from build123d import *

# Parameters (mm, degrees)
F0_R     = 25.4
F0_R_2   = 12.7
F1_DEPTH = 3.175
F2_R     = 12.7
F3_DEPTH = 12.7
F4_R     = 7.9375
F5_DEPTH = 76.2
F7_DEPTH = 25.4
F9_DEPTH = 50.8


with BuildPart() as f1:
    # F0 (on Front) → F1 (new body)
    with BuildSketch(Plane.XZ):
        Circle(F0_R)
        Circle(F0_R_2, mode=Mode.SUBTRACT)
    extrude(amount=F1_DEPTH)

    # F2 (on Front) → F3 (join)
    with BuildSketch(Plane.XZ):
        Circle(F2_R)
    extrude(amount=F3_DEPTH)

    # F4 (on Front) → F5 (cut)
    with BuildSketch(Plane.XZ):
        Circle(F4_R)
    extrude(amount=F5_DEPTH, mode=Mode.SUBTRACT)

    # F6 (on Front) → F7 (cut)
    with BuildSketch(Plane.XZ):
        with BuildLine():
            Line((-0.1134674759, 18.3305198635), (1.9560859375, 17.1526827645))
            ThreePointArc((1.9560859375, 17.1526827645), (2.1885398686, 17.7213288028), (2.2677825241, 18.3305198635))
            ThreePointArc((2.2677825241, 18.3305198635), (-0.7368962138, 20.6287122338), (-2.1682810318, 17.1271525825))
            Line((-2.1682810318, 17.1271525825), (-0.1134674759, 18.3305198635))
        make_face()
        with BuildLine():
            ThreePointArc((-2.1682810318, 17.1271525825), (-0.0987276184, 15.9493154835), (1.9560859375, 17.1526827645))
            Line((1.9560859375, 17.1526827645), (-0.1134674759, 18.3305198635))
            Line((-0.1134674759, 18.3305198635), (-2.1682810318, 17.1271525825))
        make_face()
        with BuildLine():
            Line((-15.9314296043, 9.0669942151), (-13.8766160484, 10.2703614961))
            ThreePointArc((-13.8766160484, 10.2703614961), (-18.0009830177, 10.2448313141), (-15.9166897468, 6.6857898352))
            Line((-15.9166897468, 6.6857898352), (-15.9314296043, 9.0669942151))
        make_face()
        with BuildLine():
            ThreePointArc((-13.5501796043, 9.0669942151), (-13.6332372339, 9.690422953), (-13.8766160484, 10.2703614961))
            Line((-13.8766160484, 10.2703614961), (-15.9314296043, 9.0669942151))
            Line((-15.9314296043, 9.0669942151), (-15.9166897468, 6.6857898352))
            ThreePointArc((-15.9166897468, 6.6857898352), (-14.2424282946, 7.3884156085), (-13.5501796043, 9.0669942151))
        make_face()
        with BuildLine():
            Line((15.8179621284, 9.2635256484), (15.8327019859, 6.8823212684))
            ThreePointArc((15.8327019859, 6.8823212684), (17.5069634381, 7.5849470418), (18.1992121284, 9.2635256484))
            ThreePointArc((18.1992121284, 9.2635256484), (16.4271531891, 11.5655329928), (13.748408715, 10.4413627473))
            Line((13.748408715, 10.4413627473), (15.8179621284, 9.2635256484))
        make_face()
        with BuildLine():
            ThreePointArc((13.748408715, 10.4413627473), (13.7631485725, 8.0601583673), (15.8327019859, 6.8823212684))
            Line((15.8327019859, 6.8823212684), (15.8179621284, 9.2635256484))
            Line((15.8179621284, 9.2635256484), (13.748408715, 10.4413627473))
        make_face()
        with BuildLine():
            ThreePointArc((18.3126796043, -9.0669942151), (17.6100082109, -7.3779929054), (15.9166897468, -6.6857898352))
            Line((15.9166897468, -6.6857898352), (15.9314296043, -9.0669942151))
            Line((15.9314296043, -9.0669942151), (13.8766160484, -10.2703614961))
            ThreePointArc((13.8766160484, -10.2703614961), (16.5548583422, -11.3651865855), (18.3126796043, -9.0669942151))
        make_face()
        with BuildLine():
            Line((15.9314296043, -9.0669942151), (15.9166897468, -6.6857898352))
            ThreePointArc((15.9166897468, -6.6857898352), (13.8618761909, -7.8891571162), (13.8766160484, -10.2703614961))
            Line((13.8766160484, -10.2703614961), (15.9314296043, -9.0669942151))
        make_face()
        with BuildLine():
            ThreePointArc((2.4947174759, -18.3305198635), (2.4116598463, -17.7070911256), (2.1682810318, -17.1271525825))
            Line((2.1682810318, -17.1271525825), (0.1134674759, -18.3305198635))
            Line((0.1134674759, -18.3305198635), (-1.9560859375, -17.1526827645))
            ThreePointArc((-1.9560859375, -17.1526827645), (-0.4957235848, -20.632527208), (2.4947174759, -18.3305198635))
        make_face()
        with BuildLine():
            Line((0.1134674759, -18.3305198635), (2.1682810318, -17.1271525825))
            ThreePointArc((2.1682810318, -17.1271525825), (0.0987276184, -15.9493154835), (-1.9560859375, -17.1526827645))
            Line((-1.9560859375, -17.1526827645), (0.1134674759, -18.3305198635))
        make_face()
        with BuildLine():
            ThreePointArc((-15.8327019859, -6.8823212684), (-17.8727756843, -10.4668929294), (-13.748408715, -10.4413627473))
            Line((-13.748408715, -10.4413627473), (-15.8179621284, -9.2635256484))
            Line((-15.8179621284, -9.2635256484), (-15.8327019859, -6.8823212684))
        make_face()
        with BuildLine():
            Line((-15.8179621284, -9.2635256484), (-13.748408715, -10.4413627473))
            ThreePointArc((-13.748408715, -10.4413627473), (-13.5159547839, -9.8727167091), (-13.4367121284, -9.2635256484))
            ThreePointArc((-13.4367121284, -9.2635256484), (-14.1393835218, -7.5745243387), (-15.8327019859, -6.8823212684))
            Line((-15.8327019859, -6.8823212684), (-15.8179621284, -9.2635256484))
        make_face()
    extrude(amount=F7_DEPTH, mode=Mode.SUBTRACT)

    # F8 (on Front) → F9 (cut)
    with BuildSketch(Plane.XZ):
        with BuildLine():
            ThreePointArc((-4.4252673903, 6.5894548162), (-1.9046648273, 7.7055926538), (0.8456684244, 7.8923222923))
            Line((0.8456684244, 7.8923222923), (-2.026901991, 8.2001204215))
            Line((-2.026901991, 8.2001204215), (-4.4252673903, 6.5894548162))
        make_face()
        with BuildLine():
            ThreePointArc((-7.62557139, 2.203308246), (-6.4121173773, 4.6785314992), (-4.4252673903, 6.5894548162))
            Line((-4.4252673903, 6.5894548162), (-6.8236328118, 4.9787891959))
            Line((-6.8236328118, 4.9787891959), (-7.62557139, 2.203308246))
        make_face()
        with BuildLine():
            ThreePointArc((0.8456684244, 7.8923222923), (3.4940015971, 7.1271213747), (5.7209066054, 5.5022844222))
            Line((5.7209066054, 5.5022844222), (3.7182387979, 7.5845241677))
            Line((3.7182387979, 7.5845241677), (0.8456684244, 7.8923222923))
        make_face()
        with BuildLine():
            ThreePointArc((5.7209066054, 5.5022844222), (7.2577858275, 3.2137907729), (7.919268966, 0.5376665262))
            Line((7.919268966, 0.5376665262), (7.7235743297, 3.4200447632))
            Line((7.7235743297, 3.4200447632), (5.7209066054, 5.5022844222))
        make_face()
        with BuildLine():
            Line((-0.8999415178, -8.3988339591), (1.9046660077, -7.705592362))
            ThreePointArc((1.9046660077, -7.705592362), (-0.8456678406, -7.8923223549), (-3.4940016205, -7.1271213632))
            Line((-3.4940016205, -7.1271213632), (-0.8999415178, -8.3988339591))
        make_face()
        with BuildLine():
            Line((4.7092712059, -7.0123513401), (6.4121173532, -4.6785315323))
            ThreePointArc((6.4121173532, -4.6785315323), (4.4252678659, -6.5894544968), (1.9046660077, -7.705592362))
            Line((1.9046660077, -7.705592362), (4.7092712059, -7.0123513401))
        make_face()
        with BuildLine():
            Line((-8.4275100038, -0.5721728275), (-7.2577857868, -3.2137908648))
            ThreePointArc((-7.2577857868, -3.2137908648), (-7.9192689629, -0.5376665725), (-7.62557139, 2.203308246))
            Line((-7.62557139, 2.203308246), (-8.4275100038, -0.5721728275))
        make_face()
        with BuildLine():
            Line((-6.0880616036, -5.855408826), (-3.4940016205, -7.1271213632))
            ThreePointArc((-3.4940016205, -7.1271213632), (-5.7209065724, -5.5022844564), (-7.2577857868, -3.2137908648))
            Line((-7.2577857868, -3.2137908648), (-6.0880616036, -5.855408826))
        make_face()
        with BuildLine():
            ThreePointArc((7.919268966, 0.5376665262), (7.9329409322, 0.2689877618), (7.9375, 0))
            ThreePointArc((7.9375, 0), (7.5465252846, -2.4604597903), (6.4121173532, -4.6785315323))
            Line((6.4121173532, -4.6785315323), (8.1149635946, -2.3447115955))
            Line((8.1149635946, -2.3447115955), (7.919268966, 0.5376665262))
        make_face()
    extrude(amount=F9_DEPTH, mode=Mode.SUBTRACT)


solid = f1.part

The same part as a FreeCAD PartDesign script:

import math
import FreeCAD as App
import Part
import Sketcher
from FreeCAD import Vector
Q = App.Units.Quantity

doc = App.newDocument("Part")
params = doc.addObject("Spreadsheet::Sheet", "Params")
for row, (alias, value) in enumerate([
    ("sketch1_diameter", "2 in"),
    ("sketch1_diameter2", "1 in"),
    ("pad1_length", "0.125 in"),
    ("sketch2_diameter", "1 in"),
    ("pad2_length", "0.5 in"),
    ("sketch3_diameter", "0.625 in"),
    ("pocket1_length", "3 in"),
    ("sketch4_radius", "0.09375 in"),
    ("pocket2_length", "1 in"),
    ("sketch5_radius", "0.3125 in"),
    ("pocket3_length", "2 in"),
], start=1):
    params.set(f"A{row}", alias)
    params.set(f"B{row}", "=" + value)
    params.setAlias(f"B{row}", alias)

body = doc.addObject("PartDesign::Body", "Body")

# Sketch on XZ plane
sketch1 = doc.addObject("Sketcher::SketchObject", "Sketch")
body.addObject(sketch1)
sketch1.AttachmentSupport = (doc.XZ_Plane, [""])
sketch1.MapMode = "FlatFace"
sketch1.addGeometry([
    Part.Circle(Vector(0, 0, 0), Vector(0, 0, 1), 25.4),
    Part.Circle(Vector(0, 0, 0), Vector(0, 0, 1), 12.7),
], False)
sketch1.addConstraint([
    Sketcher.Constraint("Coincident", 0, 3, -1, 1),
    Sketcher.Constraint("Coincident", 1, 3, -1, 1),
    Sketcher.Constraint("Diameter", 0, Q("2 in")),
    Sketcher.Constraint("Diameter", 1, Q("1 in")),
])
sketch1.setExpression("Constraints[2]", "Params.sketch1_diameter")
sketch1.setExpression("Constraints[3]", "Params.sketch1_diameter2")
pad1 = doc.addObject("PartDesign::Pad", "Pad")
body.addObject(pad1)
pad1.Profile = sketch1
pad1.setExpression("Length", "Params.pad1_length")

# Sketch on XZ plane
sketch2 = doc.addObject("Sketcher::SketchObject", "Sketch001")
body.addObject(sketch2)
sketch2.AttachmentSupport = (doc.XZ_Plane, [""])
sketch2.MapMode = "FlatFace"
sketch2.addGeometry(Part.Circle(Vector(0, 0, 0), Vector(0, 0, 1), 12.7), False)
sketch2.addConstraint([
    Sketcher.Constraint("Coincident", 0, 3, -1, 1),
    Sketcher.Constraint("Diameter", 0, Q("1 in")),
])
sketch2.setExpression("Constraints[1]", "Params.sketch2_diameter")
pad2 = doc.addObject("PartDesign::Pad", "Pad001")
body.addObject(pad2)
pad2.Profile = sketch2
pad2.setExpression("Length", "Params.pad2_length")

# Sketch on XZ plane
sketch3 = doc.addObject("Sketcher::SketchObject", "Sketch002")
body.addObject(sketch3)
sketch3.AttachmentSupport = (doc.XZ_Plane, [""])
sketch3.MapMode = "FlatFace"
sketch3.addGeometry(Part.Circle(Vector(0, 0, 0), Vector(0, 0, 1), 7.9375), False)
sketch3.addConstraint([
    Sketcher.Constraint("Coincident", 0, 3, -1, 1),
    Sketcher.Constraint("Diameter", 0, Q("0.625 in")),
])
sketch3.setExpression("Constraints[1]", "Params.sketch3_diameter")
pocket1 = doc.addObject("PartDesign::Pocket", "Pocket")
body.addObject(pocket1)
pocket1.Profile = sketch3
pocket1.setExpression("Length", "Params.pocket1_length")
pocket1.Reversed = True

# Sketch on XZ plane
sketch4 = doc.addObject("Sketcher::SketchObject", "Sketch003")
body.addObject(sketch4)
sketch4.AttachmentSupport = (doc.XZ_Plane, [""])
sketch4.MapMode = "FlatFace"
sketch4.addGeometry([
    Part.ArcOfCircle(Part.Circle(Vector(-0.113467, 18.33052, 0), Vector(0, 0, 1), 2.38125), math.radians(-29.645339), math.radians(0)),  # 0
    Part.ArcOfCircle(Part.Circle(Vector(-0.113467, 18.33052, 0), Vector(0, 0, 1), 2.38125), math.radians(0), math.radians(210.354661)),  # 1
    Part.ArcOfCircle(Part.Circle(Vector(-0.113467, 18.33052, 0), Vector(0, 0, 1), 2.38125), math.radians(-149.645339), math.radians(-29.645339)),  # 2
    Part.ArcOfCircle(Part.Circle(Vector(-15.93143, 9.066994, 0), Vector(0, 0, 1), 2.38125), math.radians(30.354661), math.radians(270.354661)),  # 3
    Part.ArcOfCircle(Part.Circle(Vector(-15.93143, 9.066994, 0), Vector(0, 0, 1), 2.38125), math.radians(-89.645339), math.radians(0)),  # 4
    Part.ArcOfCircle(Part.Circle(Vector(-15.93143, 9.066994, 0), Vector(0, 0, 1), 2.38125), math.radians(0), math.radians(30.354661)),  # 5
    Part.ArcOfCircle(Part.Circle(Vector(15.817962, 9.263526, 0), Vector(0, 0, 1), 2.38125), math.radians(-89.645339), math.radians(0)),  # 6
    Part.ArcOfCircle(Part.Circle(Vector(15.817962, 9.263526, 0), Vector(0, 0, 1), 2.38125), math.radians(0), math.radians(150.354661)),  # 7
    Part.ArcOfCircle(Part.Circle(Vector(15.817962, 9.263526, 0), Vector(0, 0, 1), 2.38125), math.radians(150.354661), math.radians(270.354661)),  # 8
    Part.ArcOfCircle(Part.Circle(Vector(15.93143, -9.066994, 0), Vector(0, 0, 1), 2.38125), math.radians(0), math.radians(90.354661)),  # 9
    Part.ArcOfCircle(Part.Circle(Vector(15.93143, -9.066994, 0), Vector(0, 0, 1), 2.38125), math.radians(90.354661), math.radians(210.354661)),  # 10
    Part.ArcOfCircle(Part.Circle(Vector(15.93143, -9.066994, 0), Vector(0, 0, 1), 2.38125), math.radians(-149.645339), math.radians(0)),  # 11
    Part.ArcOfCircle(Part.Circle(Vector(0.113467, -18.33052, 0), Vector(0, 0, 1), 2.38125), math.radians(0), math.radians(30.354661)),  # 12
    Part.ArcOfCircle(Part.Circle(Vector(0.113467, -18.33052, 0), Vector(0, 0, 1), 2.38125), math.radians(30.354661), math.radians(150.354661)),  # 13
    Part.ArcOfCircle(Part.Circle(Vector(0.113467, -18.33052, 0), Vector(0, 0, 1), 2.38125), math.radians(150.354661), math.radians(360)),  # 14
    Part.ArcOfCircle(Part.Circle(Vector(-15.817962, -9.263526, 0), Vector(0, 0, 1), 2.38125), math.radians(90.354661), math.radians(330.354661)),  # 15
    Part.ArcOfCircle(Part.Circle(Vector(-15.817962, -9.263526, 0), Vector(0, 0, 1), 2.38125), math.radians(-29.645339), math.radians(0)),  # 16
    Part.ArcOfCircle(Part.Circle(Vector(-15.817962, -9.263526, 0), Vector(0, 0, 1), 2.38125), math.radians(0), math.radians(90.354661)),  # 17
], False)
sketch4.addConstraint([
    Sketcher.Constraint("Tangent", 0, 2, 1, 1),
    Sketcher.Constraint("Tangent", 1, 2, 2, 1),
    Sketcher.Constraint("Tangent", 2, 2, 0, 1),
    Sketcher.Constraint("Tangent", 3, 2, 4, 1),
    Sketcher.Constraint("Tangent", 4, 2, 5, 1),
    Sketcher.Constraint("Tangent", 5, 2, 3, 1),
    Sketcher.Constraint("Tangent", 6, 2, 7, 1),
    Sketcher.Constraint("Tangent", 7, 2, 8, 1),
    Sketcher.Constraint("Tangent", 8, 2, 6, 1),
    Sketcher.Constraint("Tangent", 9, 2, 10, 1),
    Sketcher.Constraint("Tangent", 10, 2, 11, 1),
    Sketcher.Constraint("Tangent", 11, 2, 9, 1),
    Sketcher.Constraint("Tangent", 12, 2, 13, 1),
    Sketcher.Constraint("Tangent", 13, 2, 14, 1),
    Sketcher.Constraint("Tangent", 14, 2, 12, 1),
    Sketcher.Constraint("Tangent", 15, 2, 16, 1),
    Sketcher.Constraint("Tangent", 16, 2, 17, 1),
    Sketcher.Constraint("Tangent", 17, 2, 15, 1),
    Sketcher.Constraint("Equal", 2, 3),
    Sketcher.Constraint("Equal", 5, 6),
    Sketcher.Constraint("Equal", 8, 9),
    Sketcher.Constraint("Equal", 11, 12),
    Sketcher.Constraint("Equal", 14, 15),
    Sketcher.Constraint("Symmetric", 3, 3, 9, 3, -1, 1),
    Sketcher.Constraint("Symmetric", 0, 3, 12, 3, -1, 1),
    Sketcher.Constraint("Symmetric", 6, 3, 15, 3, -1, 1),
    Sketcher.Constraint("Horizontal", 2, 3, 0, 2),
    Sketcher.Constraint("Horizontal", 5, 3, 4, 2),
    Sketcher.Constraint("Horizontal", 8, 3, 6, 2),
    Sketcher.Constraint("Horizontal", 10, 3, 11, 2),
    Sketcher.Constraint("Horizontal", 13, 3, 14, 2),
    Sketcher.Constraint("Horizontal", 17, 3, 16, 2),
    Sketcher.Constraint("Radius", 0, Q("0.09375 in")),
    Sketcher.Constraint("DistanceX", -1, 1, 8, 2, Q("15.832702 mm")),
    Sketcher.Constraint("DistanceX", 17, 2, -1, 1, Q("15.832702 mm")),
    Sketcher.Constraint("DistanceX", 4, 2, 1, 2, Q("11.381899 mm")),
    Sketcher.Constraint("DistanceY", -1, 1, 0, 3, Q("18.33052 mm")),
    Sketcher.Constraint("DistanceX", 3, 3, -1, 1, Q("15.93143 mm")),
    Sketcher.Constraint("DistanceX", 3, 2, -1, 1, Q("15.91669 mm")),
    Sketcher.Constraint("DistanceY", -1, 1, 3, 2, Q("6.68579 mm")),
    Sketcher.Constraint("DistanceY", -1, 1, 5, 2, Q("10.270361 mm")),
    Sketcher.Constraint("DistanceX", -1, 1, 7, 2, Q("13.748409 mm")),
    Sketcher.Constraint("DistanceY", -1, 1, 8, 2, Q("6.882321 mm")),
    Sketcher.Constraint("DistanceX", -1, 1, 9, 2, Q("15.91669 mm")),
    Sketcher.Constraint("DistanceY", 10, 2, -1, 1, Q("10.270361 mm")),
    Sketcher.Constraint("DistanceX", -1, 1, 12, 2, Q("2.168281 mm")),
    Sketcher.Constraint("DistanceX", 15, 2, -1, 1, Q("13.748409 mm")),
    Sketcher.Constraint("DistanceX", 0, 3, 6, 3, Q("15.93143 mm")),
    Sketcher.Constraint("DistanceX", 3, 3, 6, 3, Q("31.749392 mm")),
    Sketcher.Constraint("DistanceY", 1, 2, 2, 2, Q("0.02553 mm")),
    Sketcher.Constraint("DistanceY", 13, 2, 12, 2, Q("0.02553 mm")),
])
sketch4.setExpression("Constraints[32]", "Params.sketch4_radius")
pocket2 = doc.addObject("PartDesign::Pocket", "Pocket001")
body.addObject(pocket2)
pocket2.Profile = sketch4
pocket2.setExpression("Length", "Params.pocket2_length")
pocket2.Reversed = True

# Sketch on XZ plane
sketch5 = doc.addObject("Sketcher::SketchObject", "Sketch004")
body.addObject(sketch5)
sketch5.AttachmentSupport = (doc.XZ_Plane, [""])
sketch5.MapMode = "FlatFace"
sketch5.addGeometry([
    Part.ArcOfCircle(Part.Circle(Vector(0, 0, 0), Vector(0, 0, 1), 7.9375), math.radians(83.884048), math.radians(123.884048)),  # 0
    Part.LineSegment(Vector(0.845668, 7.892322, 0), Vector(-2.026902, 8.20012, 0)),  # 1
    Part.LineSegment(Vector(-2.026902, 8.20012, 0), Vector(-4.425267, 6.589455, 0)),  # 2
    Part.ArcOfCircle(Part.Circle(Vector(0, 0, 0), Vector(0, 0, 1), 7.9375), math.radians(123.884048), math.radians(163.884048)),  # 3
    Part.LineSegment(Vector(-4.425267, 6.589455, 0), Vector(-6.823633, 4.978789, 0)),  # 4
    Part.LineSegment(Vector(-6.823633, 4.978789, 0), Vector(-7.625571, 2.203308, 0)),  # 5
    Part.ArcOfCircle(Part.Circle(Vector(0, 0, 0), Vector(0, 0, 1), 7.9375), math.radians(43.884048), math.radians(83.884048)),  # 6
    Part.LineSegment(Vector(5.720907, 5.502284, 0), Vector(3.718239, 7.584524, 0)),  # 7
    Part.LineSegment(Vector(3.718239, 7.584524, 0), Vector(0.845668, 7.892322, 0)),  # 8
    Part.ArcOfCircle(Part.Circle(Vector(0, 0, 0), Vector(0, 0, 1), 7.9375), math.radians(3.884048), math.radians(43.884048)),  # 9
    Part.LineSegment(Vector(7.919269, 0.537667, 0), Vector(7.723574, 3.420045, 0)),  # 10
    Part.LineSegment(Vector(7.723574, 3.420045, 0), Vector(5.720907, 5.502284, 0)),  # 11
    Part.LineSegment(Vector(-0.899942, -8.398834, 0), Vector(1.904666, -7.705592, 0)),  # 12
    Part.ArcOfCircle(Part.Circle(Vector(0, 0, 0), Vector(0, 0, 1), 7.9375), math.radians(-116.115952), math.radians(-76.115943)),  # 13
    Part.LineSegment(Vector(-3.494002, -7.127121, 0), Vector(-0.899942, -8.398834, 0)),  # 14
    Part.LineSegment(Vector(4.709271, -7.012351, 0), Vector(6.412117, -4.678532, 0)),  # 15
    Part.ArcOfCircle(Part.Circle(Vector(0, 0, 0), Vector(0, 0, 1), 7.9375), math.radians(-76.115943), math.radians(-36.115952)),  # 16
    Part.LineSegment(Vector(1.904666, -7.705592, 0), Vector(4.709271, -7.012351, 0)),  # 17
    Part.LineSegment(Vector(-8.42751, -0.572173, 0), Vector(-7.257786, -3.213791, 0)),  # 18
    Part.ArcOfCircle(Part.Circle(Vector(0, 0, 0), Vector(0, 0, 1), 7.9375), math.radians(163.884048), math.radians(203.884049)),  # 19
    Part.LineSegment(Vector(-7.625571, 2.203308, 0), Vector(-8.42751, -0.572173, 0)),  # 20
    Part.LineSegment(Vector(-6.088062, -5.855409, 0), Vector(-3.494002, -7.127121, 0)),  # 21
    Part.ArcOfCircle(Part.Circle(Vector(0, 0, 0), Vector(0, 0, 1), 7.9375), math.radians(-156.115951), math.radians(-116.115952)),  # 22
    Part.LineSegment(Vector(-7.257786, -3.213791, 0), Vector(-6.088062, -5.855409, 0)),  # 23
    Part.ArcOfCircle(Part.Circle(Vector(0, 0, 0), Vector(0, 0, 1), 7.9375), math.radians(0), math.radians(3.884048)),  # 24
    Part.ArcOfCircle(Part.Circle(Vector(0, 0, 0), Vector(0, 0, 1), 7.9375), math.radians(-36.115952), math.radians(0)),  # 25
    Part.LineSegment(Vector(6.412117, -4.678532, 0), Vector(8.114964, -2.344712, 0)),  # 26
    Part.LineSegment(Vector(8.114964, -2.344712, 0), Vector(7.919269, 0.537667, 0)),  # 27
], False)
sketch5.addConstraint([
    Sketcher.Constraint("Tangent", 0, 1, 1, 1),
    Sketcher.Constraint("Coincident", 1, 2, 2, 1),
    Sketcher.Constraint("Tangent", 2, 2, 0, 2),
    Sketcher.Constraint("Tangent", 3, 1, 4, 1),
    Sketcher.Constraint("Coincident", 4, 2, 5, 1),
    Sketcher.Constraint("Tangent", 5, 2, 3, 2),
    Sketcher.Constraint("Tangent", 6, 1, 7, 1),
    Sketcher.Constraint("Coincident", 7, 2, 8, 1),
    Sketcher.Constraint("Tangent", 8, 2, 6, 2),
    Sketcher.Constraint("Tangent", 9, 1, 10, 1),
    Sketcher.Constraint("Coincident", 10, 2, 11, 1),
    Sketcher.Constraint("Tangent", 11, 2, 9, 2),
    Sketcher.Constraint("Tangent", 12, 2, 13, 2),
    Sketcher.Constraint("Tangent", 13, 1, 14, 1),
    Sketcher.Constraint("Coincident", 14, 2, 12, 1),
    Sketcher.Constraint("Tangent", 15, 2, 16, 2),
    Sketcher.Constraint("Tangent", 16, 1, 17, 1),
    Sketcher.Constraint("Coincident", 17, 2, 15, 1),
    Sketcher.Constraint("Tangent", 18, 2, 19, 2),
    Sketcher.Constraint("Tangent", 19, 1, 20, 1),
    Sketcher.Constraint("Coincident", 20, 2, 18, 1),
    Sketcher.Constraint("Tangent", 21, 2, 22, 2),
    Sketcher.Constraint("Tangent", 22, 1, 23, 1),
    Sketcher.Constraint("Coincident", 23, 2, 21, 1),
    Sketcher.Constraint("Tangent", 24, 1, 25, 2),
    Sketcher.Constraint("Tangent", 25, 1, 26, 1),
    Sketcher.Constraint("Coincident", 26, 2, 27, 1),
    Sketcher.Constraint("Tangent", 27, 2, 24, 2),
    Sketcher.Constraint("Coincident", 0, 3, -1, 1),
    Sketcher.Constraint("Coincident", 3, 3, -1, 1),
    Sketcher.Constraint("Coincident", 6, 3, -1, 1),
    Sketcher.Constraint("Coincident", 9, 3, -1, 1),
    Sketcher.Constraint("Coincident", 13, 3, -1, 1),
    Sketcher.Constraint("Coincident", 16, 3, -1, 1),
    Sketcher.Constraint("Coincident", 19, 3, -1, 1),
    Sketcher.Constraint("Coincident", 22, 3, -1, 1),
    Sketcher.Constraint("Coincident", 24, 3, -1, 1),
    Sketcher.Constraint("Coincident", 3, 1, 2, 2),
    Sketcher.Constraint("Coincident", 8, 2, 0, 1),
    Sketcher.Constraint("Coincident", 11, 2, 6, 1),
    Sketcher.Constraint("Coincident", 16, 1, 12, 2),
    Sketcher.Constraint("Coincident", 19, 1, 5, 2),
    Sketcher.Constraint("Coincident", 21, 2, 13, 1),
    Sketcher.Constraint("Coincident", 22, 1, 18, 2),
    Sketcher.Constraint("Coincident", 25, 1, 15, 2),
    Sketcher.Constraint("Coincident", 27, 2, 9, 1),
    Sketcher.Constraint("PointOnObject", 24, 1, -1),
    Sketcher.Constraint("Equal", 2, 4),
    Sketcher.Constraint("Equal", 5, 7),
    Sketcher.Constraint("Equal", 8, 10),
    Sketcher.Constraint("Equal", 11, 12),
    Sketcher.Constraint("Equal", 14, 15),
    Sketcher.Constraint("Equal", 17, 18),
    Sketcher.Constraint("Equal", 20, 21),
    Sketcher.Constraint("Equal", 23, 26),
    Sketcher.Constraint("Radius", 0, Q("0.3125 in")),
    Sketcher.Constraint("DistanceX", 1, 2, -1, 1, Q("2.026902 mm")),
])
sketch5.setExpression("Constraints[55]", "Params.sketch5_radius")
pocket3 = doc.addObject("PartDesign::Pocket", "Pocket002")
body.addObject(pocket3)
pocket3.Profile = sketch5
pocket3.setExpression("Length", "Params.pocket3_length")
pocket3.Reversed = True

doc.recompute()
